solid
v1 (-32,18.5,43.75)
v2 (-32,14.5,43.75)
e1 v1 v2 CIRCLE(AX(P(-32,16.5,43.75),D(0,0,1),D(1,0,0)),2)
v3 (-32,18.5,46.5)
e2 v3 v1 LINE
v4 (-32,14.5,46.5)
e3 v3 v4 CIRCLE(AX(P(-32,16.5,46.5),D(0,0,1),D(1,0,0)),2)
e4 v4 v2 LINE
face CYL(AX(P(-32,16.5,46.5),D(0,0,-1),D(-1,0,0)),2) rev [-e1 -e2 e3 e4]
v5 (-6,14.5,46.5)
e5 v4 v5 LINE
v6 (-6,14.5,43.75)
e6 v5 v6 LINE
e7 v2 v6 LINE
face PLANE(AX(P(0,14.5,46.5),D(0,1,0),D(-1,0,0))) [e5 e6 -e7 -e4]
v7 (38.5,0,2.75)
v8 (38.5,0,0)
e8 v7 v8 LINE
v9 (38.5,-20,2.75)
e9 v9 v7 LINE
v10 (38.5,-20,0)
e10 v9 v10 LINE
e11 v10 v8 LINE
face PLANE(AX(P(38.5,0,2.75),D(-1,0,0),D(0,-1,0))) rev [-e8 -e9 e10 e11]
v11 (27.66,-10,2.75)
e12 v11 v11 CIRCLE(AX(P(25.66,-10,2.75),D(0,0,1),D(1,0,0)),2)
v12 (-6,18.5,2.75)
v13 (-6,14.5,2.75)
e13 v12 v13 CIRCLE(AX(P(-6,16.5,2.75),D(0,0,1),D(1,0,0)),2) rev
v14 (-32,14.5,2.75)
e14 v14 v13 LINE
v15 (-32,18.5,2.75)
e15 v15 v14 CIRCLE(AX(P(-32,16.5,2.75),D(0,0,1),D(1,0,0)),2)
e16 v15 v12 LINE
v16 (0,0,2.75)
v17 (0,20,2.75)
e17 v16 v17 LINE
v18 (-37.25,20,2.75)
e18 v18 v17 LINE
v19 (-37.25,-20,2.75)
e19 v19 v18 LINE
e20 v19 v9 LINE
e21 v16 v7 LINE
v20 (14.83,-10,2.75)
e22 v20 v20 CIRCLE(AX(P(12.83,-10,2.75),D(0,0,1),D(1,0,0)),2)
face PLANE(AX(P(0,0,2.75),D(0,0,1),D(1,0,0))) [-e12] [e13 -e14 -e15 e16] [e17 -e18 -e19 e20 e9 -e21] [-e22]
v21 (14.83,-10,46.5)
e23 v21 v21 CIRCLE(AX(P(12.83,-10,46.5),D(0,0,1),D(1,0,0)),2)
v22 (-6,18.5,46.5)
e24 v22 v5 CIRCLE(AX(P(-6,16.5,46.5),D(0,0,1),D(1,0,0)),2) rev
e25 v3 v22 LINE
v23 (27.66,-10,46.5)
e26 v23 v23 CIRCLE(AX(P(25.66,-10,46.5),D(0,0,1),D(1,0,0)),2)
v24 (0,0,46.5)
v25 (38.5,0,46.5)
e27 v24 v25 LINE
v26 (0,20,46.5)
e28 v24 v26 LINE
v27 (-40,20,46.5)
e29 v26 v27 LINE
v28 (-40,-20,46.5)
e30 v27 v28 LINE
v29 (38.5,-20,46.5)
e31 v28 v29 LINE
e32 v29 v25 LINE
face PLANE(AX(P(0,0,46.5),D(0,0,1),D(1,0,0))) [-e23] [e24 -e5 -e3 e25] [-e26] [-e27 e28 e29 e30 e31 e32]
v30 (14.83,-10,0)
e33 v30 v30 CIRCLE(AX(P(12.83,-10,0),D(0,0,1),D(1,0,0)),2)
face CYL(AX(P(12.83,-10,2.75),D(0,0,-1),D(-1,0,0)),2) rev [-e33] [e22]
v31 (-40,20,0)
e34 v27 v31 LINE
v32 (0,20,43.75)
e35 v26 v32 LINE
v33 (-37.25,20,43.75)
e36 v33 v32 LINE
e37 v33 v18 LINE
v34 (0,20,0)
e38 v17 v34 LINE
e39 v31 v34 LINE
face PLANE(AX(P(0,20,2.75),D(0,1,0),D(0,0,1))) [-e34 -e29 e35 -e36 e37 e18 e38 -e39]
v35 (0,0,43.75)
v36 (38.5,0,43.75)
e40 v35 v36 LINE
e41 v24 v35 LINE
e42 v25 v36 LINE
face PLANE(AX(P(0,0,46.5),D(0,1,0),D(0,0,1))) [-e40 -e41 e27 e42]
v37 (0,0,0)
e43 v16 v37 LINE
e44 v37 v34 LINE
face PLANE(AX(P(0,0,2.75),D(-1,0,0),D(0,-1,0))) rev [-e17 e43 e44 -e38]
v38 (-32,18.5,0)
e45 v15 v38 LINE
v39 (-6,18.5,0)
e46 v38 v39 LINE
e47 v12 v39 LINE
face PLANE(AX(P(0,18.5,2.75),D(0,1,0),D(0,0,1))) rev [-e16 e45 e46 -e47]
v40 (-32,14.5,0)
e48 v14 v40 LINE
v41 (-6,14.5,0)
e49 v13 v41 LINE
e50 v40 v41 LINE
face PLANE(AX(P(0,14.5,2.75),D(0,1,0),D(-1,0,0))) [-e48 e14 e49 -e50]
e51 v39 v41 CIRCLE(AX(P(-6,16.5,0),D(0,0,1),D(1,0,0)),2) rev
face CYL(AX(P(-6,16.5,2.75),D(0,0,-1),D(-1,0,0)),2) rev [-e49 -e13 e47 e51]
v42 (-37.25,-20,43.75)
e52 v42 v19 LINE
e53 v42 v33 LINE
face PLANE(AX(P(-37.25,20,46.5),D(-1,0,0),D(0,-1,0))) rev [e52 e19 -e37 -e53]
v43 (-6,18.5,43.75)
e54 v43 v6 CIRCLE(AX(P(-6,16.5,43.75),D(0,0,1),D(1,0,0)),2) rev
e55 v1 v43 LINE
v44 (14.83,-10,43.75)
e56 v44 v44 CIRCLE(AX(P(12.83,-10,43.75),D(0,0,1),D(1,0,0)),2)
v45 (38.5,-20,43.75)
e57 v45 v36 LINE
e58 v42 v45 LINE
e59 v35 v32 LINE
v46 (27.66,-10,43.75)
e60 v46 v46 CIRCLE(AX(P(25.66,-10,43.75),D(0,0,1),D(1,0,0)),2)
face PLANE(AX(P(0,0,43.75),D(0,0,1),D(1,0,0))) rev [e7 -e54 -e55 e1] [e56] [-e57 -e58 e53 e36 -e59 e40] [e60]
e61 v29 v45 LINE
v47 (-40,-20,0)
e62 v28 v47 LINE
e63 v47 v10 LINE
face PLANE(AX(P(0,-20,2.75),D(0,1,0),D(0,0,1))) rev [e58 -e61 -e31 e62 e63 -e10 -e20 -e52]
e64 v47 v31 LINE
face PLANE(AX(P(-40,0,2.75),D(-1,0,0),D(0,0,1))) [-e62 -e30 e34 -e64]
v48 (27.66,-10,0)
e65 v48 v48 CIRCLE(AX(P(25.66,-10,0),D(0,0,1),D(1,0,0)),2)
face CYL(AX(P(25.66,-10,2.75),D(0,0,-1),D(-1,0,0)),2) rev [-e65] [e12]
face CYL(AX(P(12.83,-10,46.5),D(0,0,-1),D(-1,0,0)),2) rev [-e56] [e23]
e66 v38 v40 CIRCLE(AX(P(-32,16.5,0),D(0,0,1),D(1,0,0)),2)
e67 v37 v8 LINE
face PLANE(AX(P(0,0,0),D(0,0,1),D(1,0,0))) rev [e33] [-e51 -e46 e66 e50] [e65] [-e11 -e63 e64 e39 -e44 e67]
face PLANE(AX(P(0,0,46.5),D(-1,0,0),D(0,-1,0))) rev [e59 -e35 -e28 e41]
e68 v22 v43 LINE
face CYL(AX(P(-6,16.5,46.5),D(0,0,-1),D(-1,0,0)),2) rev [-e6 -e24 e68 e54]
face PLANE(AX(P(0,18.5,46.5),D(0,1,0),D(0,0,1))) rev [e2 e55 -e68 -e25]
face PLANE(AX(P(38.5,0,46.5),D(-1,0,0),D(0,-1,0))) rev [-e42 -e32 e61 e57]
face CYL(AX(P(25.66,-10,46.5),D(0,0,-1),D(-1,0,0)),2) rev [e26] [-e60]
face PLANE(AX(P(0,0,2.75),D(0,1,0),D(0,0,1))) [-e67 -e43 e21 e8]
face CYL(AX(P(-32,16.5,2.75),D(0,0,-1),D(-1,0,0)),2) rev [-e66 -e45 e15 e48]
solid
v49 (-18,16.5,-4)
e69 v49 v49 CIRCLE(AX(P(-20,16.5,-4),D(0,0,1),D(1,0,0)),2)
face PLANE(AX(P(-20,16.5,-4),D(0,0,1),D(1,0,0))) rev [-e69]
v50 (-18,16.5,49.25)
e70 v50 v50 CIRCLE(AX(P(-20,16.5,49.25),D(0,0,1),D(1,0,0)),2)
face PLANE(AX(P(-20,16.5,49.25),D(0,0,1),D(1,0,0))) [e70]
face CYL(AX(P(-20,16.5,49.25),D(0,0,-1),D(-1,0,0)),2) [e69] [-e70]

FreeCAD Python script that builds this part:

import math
import FreeCAD as App
import Part
import Sketcher
Q = App.Units.Quantity


def add_polygon(sketch, points):
    """Adds a closed chain of lines whose ends are joined by coincident constraints."""
    first, n = sketch.GeometryCount, len(points)
    for a, b in zip(points, points[1:] + points[:1]):
        sketch.addGeometry(Part.LineSegment(App.Vector(*a, 0), App.Vector(*b, 0)), False)
    for i in range(n):
        sketch.addConstraint(Sketcher.Constraint("Coincident", first + i, 2, first + (i + 1) % n, 1))

doc = App.newDocument("Part")
body = doc.addObject("PartDesign::Body", "Body")

sketch1 = body.newObject("Sketcher::SketchObject", "Sketch")
sketch1.AttachmentSupport = (doc.getObject("XY_Plane"), [""])
sketch1.MapMode = "FlatFace"
add_polygon(sketch1, [(38.5, 0), (0, 0), (0, 20), (-40, 20), (-40, -20), (38.5, -20)])
sketch1.addGeometry(Part.Circle(App.Vector(25.66, -10, 0), App.Vector(0, 0, 1), 2), False)
sketch1.addGeometry(Part.Circle(App.Vector(12.83, -10, 0), App.Vector(0, 0, 1), 2), False)
sketch1.addGeometry(Part.LineSegment(App.Vector(-32, 18.5, 0), App.Vector(-6, 18.5, 0)), False)
sketch1.addGeometry(Part.ArcOfCircle(Part.Circle(App.Vector(-6, 16.5, 0), App.Vector(0, 0, 1), 2), math.radians(-90), math.radians(90)), False)
sketch1.addGeometry(Part.LineSegment(App.Vector(-6, 14.5, 0), App.Vector(-32, 14.5, 0)), False)
sketch1.addGeometry(Part.ArcOfCircle(Part.Circle(App.Vector(-32, 16.5, 0), App.Vector(0, 0, 1), 2), math.radians(90), math.radians(270)), False)
sketch1.addConstraint(Sketcher.Constraint("Tangent", 8, 2, 9, 2))
sketch1.addConstraint(Sketcher.Constraint("Tangent", 9, 1, 10, 1))
sketch1.addConstraint(Sketcher.Constraint("Tangent", 10, 2, 11, 2))
sketch1.addConstraint(Sketcher.Constraint("Tangent", 11, 1, 8, 1))
sketch1.addConstraint(Sketcher.Constraint("Horizontal", 0))
sketch1.addConstraint(Sketcher.Constraint("Vertical", 1))
sketch1.addConstraint(Sketcher.Constraint("Horizontal", 2))
sketch1.addConstraint(Sketcher.Constraint("Vertical", 3))
sketch1.addConstraint(Sketcher.Constraint("Horizontal", 4))
sketch1.addConstraint(Sketcher.Constraint("Vertical", 5))
sketch1.addConstraint(Sketcher.Constraint("Horizontal", 8))
sketch1.addConstraint(Sketcher.Constraint("Horizontal", 10))
sketch1.addConstraint(Sketcher.Constraint("Coincident", 0, 2, -1, 1))
sketch1.addConstraint(Sketcher.Constraint("Equal", 6, 7))
sketch1.addConstraint(Sketcher.Constraint("Equal", 7, 9))
sketch1.addConstraint(Sketcher.Constraint("Horizontal", 6, 3, 7, 3))
sketch1.addConstraint(Sketcher.Constraint("Equal", 2, 3))
sketch1.addConstraint(Sketcher.Constraint("Equal", 1, 5))
sketch1.addConstraint(Sketcher.Constraint("Diameter", 6, Q("4 mm")))
sketch1.addConstraint(Sketcher.Constraint("DistanceX", 2, 2, 2, 1, Q("40 mm")))
sketch1.addConstraint(Sketcher.Constraint("DistanceX", 8, 1, 8, 2, Q("26 mm")))
sketch1.addConstraint(Sketcher.Constraint("DistanceX", 0, 2, 0, 1, Q("38.5 mm")))
sketch1.addConstraint(Sketcher.Constraint("DistanceY", 6, 3, -1, 1, Q("10 mm")))
sketch1.addConstraint(Sketcher.Constraint("DistanceX", 9, 3, -1, 1, Q("6 mm")))
sketch1.addConstraint(Sketcher.Constraint("DistanceY", -1, 1, 9, 3, Q("16.5 mm")))
sketch1.addConstraint(Sketcher.Constraint("DistanceX", -1, 1, 6, 3, Q("25.66 mm")))
sketch1.addConstraint(Sketcher.Constraint("DistanceX", -1, 1, 7, 3, Q("12.83 mm")))
pad1 = body.newObject("PartDesign::Pad", "Pad")
pad1.Profile = sketch1
pad1.Length = 2.75

sketch2 = body.newObject("Sketcher::SketchObject", "Sketch001")
sketch2.AttachmentSupport = (doc.getObject("XY_Plane"), [""])
sketch2.MapMode = "FlatFace"
sketch2.AttachmentOffset = App.Placement(App.Vector(0, 0, 2.75), App.Rotation())
add_polygon(sketch2, [(-40, 20), (-40, -20), (-37.25, -20), (-37.25, 20)])
sketch2.addConstraint(Sketcher.Constraint("Vertical", 0))
sketch2.addConstraint(Sketcher.Constraint("Horizontal", 1))
sketch2.addConstraint(Sketcher.Constraint("Vertical", 2))
sketch2.addConstraint(Sketcher.Constraint("Horizontal", 3))
sketch2.addConstraint(Sketcher.Constraint("DistanceY", 0, 2, 0, 1, Q("40 mm")))
sketch2.addConstraint(Sketcher.Constraint("DistanceX", 0, 2, -1, 1, Q("40 mm")))
sketch2.addConstraint(Sketcher.Constraint("DistanceY", 0, 2, -1, 1, Q("20 mm")))
sketch2.addConstraint(Sketcher.Constraint("DistanceX", 1, 1, 1, 2, Q("2.75 mm")))
pad2 = body.newObject("PartDesign::Pad", "Pad001")
pad2.Profile = sketch2
pad2.Length = 43.75
doc.recompute()

linearpattern = body.newObject("PartDesign::LinearPattern", "LinearPattern")
linearpattern.Originals = [pad1]
linearpattern.Direction = (doc.getObject("Z_Axis"), [""])
linearpattern.Mode = "offset"
linearpattern.Offset = 43.75
linearpattern.Occurrences = 2
body.Tip = linearpattern
body2 = doc.addObject("PartDesign::Body", "Body001")

sketch3 = body2.newObject("Sketcher::SketchObject", "Sketch002")
sketch3.AttachmentSupport = (doc.getObject("XY_Plane001"), [""])
sketch3.MapMode = "FlatFace"
sketch3.AttachmentOffset = App.Placement(App.Vector(0, 0, -4), App.Rotation())
sketch3.addGeometry(Part.Circle(App.Vector(-20, 16.5, 0), App.Vector(0, 0, 1), 2), False)
sketch3.addConstraint(Sketcher.Constraint("Diameter", 0, Q("4 mm")))
sketch3.addConstraint(Sketcher.Constraint("DistanceX", 0, 3, -1, 1, Q("20 mm")))
sketch3.addConstraint(Sketcher.Constraint("DistanceY", -1, 1, 0, 3, Q("16.5 mm")))
pad3 = body2.newObject("PartDesign::Pad", "Pad002")
pad3.Profile = sketch3
pad3.Length = 53.25

doc.recompute()
